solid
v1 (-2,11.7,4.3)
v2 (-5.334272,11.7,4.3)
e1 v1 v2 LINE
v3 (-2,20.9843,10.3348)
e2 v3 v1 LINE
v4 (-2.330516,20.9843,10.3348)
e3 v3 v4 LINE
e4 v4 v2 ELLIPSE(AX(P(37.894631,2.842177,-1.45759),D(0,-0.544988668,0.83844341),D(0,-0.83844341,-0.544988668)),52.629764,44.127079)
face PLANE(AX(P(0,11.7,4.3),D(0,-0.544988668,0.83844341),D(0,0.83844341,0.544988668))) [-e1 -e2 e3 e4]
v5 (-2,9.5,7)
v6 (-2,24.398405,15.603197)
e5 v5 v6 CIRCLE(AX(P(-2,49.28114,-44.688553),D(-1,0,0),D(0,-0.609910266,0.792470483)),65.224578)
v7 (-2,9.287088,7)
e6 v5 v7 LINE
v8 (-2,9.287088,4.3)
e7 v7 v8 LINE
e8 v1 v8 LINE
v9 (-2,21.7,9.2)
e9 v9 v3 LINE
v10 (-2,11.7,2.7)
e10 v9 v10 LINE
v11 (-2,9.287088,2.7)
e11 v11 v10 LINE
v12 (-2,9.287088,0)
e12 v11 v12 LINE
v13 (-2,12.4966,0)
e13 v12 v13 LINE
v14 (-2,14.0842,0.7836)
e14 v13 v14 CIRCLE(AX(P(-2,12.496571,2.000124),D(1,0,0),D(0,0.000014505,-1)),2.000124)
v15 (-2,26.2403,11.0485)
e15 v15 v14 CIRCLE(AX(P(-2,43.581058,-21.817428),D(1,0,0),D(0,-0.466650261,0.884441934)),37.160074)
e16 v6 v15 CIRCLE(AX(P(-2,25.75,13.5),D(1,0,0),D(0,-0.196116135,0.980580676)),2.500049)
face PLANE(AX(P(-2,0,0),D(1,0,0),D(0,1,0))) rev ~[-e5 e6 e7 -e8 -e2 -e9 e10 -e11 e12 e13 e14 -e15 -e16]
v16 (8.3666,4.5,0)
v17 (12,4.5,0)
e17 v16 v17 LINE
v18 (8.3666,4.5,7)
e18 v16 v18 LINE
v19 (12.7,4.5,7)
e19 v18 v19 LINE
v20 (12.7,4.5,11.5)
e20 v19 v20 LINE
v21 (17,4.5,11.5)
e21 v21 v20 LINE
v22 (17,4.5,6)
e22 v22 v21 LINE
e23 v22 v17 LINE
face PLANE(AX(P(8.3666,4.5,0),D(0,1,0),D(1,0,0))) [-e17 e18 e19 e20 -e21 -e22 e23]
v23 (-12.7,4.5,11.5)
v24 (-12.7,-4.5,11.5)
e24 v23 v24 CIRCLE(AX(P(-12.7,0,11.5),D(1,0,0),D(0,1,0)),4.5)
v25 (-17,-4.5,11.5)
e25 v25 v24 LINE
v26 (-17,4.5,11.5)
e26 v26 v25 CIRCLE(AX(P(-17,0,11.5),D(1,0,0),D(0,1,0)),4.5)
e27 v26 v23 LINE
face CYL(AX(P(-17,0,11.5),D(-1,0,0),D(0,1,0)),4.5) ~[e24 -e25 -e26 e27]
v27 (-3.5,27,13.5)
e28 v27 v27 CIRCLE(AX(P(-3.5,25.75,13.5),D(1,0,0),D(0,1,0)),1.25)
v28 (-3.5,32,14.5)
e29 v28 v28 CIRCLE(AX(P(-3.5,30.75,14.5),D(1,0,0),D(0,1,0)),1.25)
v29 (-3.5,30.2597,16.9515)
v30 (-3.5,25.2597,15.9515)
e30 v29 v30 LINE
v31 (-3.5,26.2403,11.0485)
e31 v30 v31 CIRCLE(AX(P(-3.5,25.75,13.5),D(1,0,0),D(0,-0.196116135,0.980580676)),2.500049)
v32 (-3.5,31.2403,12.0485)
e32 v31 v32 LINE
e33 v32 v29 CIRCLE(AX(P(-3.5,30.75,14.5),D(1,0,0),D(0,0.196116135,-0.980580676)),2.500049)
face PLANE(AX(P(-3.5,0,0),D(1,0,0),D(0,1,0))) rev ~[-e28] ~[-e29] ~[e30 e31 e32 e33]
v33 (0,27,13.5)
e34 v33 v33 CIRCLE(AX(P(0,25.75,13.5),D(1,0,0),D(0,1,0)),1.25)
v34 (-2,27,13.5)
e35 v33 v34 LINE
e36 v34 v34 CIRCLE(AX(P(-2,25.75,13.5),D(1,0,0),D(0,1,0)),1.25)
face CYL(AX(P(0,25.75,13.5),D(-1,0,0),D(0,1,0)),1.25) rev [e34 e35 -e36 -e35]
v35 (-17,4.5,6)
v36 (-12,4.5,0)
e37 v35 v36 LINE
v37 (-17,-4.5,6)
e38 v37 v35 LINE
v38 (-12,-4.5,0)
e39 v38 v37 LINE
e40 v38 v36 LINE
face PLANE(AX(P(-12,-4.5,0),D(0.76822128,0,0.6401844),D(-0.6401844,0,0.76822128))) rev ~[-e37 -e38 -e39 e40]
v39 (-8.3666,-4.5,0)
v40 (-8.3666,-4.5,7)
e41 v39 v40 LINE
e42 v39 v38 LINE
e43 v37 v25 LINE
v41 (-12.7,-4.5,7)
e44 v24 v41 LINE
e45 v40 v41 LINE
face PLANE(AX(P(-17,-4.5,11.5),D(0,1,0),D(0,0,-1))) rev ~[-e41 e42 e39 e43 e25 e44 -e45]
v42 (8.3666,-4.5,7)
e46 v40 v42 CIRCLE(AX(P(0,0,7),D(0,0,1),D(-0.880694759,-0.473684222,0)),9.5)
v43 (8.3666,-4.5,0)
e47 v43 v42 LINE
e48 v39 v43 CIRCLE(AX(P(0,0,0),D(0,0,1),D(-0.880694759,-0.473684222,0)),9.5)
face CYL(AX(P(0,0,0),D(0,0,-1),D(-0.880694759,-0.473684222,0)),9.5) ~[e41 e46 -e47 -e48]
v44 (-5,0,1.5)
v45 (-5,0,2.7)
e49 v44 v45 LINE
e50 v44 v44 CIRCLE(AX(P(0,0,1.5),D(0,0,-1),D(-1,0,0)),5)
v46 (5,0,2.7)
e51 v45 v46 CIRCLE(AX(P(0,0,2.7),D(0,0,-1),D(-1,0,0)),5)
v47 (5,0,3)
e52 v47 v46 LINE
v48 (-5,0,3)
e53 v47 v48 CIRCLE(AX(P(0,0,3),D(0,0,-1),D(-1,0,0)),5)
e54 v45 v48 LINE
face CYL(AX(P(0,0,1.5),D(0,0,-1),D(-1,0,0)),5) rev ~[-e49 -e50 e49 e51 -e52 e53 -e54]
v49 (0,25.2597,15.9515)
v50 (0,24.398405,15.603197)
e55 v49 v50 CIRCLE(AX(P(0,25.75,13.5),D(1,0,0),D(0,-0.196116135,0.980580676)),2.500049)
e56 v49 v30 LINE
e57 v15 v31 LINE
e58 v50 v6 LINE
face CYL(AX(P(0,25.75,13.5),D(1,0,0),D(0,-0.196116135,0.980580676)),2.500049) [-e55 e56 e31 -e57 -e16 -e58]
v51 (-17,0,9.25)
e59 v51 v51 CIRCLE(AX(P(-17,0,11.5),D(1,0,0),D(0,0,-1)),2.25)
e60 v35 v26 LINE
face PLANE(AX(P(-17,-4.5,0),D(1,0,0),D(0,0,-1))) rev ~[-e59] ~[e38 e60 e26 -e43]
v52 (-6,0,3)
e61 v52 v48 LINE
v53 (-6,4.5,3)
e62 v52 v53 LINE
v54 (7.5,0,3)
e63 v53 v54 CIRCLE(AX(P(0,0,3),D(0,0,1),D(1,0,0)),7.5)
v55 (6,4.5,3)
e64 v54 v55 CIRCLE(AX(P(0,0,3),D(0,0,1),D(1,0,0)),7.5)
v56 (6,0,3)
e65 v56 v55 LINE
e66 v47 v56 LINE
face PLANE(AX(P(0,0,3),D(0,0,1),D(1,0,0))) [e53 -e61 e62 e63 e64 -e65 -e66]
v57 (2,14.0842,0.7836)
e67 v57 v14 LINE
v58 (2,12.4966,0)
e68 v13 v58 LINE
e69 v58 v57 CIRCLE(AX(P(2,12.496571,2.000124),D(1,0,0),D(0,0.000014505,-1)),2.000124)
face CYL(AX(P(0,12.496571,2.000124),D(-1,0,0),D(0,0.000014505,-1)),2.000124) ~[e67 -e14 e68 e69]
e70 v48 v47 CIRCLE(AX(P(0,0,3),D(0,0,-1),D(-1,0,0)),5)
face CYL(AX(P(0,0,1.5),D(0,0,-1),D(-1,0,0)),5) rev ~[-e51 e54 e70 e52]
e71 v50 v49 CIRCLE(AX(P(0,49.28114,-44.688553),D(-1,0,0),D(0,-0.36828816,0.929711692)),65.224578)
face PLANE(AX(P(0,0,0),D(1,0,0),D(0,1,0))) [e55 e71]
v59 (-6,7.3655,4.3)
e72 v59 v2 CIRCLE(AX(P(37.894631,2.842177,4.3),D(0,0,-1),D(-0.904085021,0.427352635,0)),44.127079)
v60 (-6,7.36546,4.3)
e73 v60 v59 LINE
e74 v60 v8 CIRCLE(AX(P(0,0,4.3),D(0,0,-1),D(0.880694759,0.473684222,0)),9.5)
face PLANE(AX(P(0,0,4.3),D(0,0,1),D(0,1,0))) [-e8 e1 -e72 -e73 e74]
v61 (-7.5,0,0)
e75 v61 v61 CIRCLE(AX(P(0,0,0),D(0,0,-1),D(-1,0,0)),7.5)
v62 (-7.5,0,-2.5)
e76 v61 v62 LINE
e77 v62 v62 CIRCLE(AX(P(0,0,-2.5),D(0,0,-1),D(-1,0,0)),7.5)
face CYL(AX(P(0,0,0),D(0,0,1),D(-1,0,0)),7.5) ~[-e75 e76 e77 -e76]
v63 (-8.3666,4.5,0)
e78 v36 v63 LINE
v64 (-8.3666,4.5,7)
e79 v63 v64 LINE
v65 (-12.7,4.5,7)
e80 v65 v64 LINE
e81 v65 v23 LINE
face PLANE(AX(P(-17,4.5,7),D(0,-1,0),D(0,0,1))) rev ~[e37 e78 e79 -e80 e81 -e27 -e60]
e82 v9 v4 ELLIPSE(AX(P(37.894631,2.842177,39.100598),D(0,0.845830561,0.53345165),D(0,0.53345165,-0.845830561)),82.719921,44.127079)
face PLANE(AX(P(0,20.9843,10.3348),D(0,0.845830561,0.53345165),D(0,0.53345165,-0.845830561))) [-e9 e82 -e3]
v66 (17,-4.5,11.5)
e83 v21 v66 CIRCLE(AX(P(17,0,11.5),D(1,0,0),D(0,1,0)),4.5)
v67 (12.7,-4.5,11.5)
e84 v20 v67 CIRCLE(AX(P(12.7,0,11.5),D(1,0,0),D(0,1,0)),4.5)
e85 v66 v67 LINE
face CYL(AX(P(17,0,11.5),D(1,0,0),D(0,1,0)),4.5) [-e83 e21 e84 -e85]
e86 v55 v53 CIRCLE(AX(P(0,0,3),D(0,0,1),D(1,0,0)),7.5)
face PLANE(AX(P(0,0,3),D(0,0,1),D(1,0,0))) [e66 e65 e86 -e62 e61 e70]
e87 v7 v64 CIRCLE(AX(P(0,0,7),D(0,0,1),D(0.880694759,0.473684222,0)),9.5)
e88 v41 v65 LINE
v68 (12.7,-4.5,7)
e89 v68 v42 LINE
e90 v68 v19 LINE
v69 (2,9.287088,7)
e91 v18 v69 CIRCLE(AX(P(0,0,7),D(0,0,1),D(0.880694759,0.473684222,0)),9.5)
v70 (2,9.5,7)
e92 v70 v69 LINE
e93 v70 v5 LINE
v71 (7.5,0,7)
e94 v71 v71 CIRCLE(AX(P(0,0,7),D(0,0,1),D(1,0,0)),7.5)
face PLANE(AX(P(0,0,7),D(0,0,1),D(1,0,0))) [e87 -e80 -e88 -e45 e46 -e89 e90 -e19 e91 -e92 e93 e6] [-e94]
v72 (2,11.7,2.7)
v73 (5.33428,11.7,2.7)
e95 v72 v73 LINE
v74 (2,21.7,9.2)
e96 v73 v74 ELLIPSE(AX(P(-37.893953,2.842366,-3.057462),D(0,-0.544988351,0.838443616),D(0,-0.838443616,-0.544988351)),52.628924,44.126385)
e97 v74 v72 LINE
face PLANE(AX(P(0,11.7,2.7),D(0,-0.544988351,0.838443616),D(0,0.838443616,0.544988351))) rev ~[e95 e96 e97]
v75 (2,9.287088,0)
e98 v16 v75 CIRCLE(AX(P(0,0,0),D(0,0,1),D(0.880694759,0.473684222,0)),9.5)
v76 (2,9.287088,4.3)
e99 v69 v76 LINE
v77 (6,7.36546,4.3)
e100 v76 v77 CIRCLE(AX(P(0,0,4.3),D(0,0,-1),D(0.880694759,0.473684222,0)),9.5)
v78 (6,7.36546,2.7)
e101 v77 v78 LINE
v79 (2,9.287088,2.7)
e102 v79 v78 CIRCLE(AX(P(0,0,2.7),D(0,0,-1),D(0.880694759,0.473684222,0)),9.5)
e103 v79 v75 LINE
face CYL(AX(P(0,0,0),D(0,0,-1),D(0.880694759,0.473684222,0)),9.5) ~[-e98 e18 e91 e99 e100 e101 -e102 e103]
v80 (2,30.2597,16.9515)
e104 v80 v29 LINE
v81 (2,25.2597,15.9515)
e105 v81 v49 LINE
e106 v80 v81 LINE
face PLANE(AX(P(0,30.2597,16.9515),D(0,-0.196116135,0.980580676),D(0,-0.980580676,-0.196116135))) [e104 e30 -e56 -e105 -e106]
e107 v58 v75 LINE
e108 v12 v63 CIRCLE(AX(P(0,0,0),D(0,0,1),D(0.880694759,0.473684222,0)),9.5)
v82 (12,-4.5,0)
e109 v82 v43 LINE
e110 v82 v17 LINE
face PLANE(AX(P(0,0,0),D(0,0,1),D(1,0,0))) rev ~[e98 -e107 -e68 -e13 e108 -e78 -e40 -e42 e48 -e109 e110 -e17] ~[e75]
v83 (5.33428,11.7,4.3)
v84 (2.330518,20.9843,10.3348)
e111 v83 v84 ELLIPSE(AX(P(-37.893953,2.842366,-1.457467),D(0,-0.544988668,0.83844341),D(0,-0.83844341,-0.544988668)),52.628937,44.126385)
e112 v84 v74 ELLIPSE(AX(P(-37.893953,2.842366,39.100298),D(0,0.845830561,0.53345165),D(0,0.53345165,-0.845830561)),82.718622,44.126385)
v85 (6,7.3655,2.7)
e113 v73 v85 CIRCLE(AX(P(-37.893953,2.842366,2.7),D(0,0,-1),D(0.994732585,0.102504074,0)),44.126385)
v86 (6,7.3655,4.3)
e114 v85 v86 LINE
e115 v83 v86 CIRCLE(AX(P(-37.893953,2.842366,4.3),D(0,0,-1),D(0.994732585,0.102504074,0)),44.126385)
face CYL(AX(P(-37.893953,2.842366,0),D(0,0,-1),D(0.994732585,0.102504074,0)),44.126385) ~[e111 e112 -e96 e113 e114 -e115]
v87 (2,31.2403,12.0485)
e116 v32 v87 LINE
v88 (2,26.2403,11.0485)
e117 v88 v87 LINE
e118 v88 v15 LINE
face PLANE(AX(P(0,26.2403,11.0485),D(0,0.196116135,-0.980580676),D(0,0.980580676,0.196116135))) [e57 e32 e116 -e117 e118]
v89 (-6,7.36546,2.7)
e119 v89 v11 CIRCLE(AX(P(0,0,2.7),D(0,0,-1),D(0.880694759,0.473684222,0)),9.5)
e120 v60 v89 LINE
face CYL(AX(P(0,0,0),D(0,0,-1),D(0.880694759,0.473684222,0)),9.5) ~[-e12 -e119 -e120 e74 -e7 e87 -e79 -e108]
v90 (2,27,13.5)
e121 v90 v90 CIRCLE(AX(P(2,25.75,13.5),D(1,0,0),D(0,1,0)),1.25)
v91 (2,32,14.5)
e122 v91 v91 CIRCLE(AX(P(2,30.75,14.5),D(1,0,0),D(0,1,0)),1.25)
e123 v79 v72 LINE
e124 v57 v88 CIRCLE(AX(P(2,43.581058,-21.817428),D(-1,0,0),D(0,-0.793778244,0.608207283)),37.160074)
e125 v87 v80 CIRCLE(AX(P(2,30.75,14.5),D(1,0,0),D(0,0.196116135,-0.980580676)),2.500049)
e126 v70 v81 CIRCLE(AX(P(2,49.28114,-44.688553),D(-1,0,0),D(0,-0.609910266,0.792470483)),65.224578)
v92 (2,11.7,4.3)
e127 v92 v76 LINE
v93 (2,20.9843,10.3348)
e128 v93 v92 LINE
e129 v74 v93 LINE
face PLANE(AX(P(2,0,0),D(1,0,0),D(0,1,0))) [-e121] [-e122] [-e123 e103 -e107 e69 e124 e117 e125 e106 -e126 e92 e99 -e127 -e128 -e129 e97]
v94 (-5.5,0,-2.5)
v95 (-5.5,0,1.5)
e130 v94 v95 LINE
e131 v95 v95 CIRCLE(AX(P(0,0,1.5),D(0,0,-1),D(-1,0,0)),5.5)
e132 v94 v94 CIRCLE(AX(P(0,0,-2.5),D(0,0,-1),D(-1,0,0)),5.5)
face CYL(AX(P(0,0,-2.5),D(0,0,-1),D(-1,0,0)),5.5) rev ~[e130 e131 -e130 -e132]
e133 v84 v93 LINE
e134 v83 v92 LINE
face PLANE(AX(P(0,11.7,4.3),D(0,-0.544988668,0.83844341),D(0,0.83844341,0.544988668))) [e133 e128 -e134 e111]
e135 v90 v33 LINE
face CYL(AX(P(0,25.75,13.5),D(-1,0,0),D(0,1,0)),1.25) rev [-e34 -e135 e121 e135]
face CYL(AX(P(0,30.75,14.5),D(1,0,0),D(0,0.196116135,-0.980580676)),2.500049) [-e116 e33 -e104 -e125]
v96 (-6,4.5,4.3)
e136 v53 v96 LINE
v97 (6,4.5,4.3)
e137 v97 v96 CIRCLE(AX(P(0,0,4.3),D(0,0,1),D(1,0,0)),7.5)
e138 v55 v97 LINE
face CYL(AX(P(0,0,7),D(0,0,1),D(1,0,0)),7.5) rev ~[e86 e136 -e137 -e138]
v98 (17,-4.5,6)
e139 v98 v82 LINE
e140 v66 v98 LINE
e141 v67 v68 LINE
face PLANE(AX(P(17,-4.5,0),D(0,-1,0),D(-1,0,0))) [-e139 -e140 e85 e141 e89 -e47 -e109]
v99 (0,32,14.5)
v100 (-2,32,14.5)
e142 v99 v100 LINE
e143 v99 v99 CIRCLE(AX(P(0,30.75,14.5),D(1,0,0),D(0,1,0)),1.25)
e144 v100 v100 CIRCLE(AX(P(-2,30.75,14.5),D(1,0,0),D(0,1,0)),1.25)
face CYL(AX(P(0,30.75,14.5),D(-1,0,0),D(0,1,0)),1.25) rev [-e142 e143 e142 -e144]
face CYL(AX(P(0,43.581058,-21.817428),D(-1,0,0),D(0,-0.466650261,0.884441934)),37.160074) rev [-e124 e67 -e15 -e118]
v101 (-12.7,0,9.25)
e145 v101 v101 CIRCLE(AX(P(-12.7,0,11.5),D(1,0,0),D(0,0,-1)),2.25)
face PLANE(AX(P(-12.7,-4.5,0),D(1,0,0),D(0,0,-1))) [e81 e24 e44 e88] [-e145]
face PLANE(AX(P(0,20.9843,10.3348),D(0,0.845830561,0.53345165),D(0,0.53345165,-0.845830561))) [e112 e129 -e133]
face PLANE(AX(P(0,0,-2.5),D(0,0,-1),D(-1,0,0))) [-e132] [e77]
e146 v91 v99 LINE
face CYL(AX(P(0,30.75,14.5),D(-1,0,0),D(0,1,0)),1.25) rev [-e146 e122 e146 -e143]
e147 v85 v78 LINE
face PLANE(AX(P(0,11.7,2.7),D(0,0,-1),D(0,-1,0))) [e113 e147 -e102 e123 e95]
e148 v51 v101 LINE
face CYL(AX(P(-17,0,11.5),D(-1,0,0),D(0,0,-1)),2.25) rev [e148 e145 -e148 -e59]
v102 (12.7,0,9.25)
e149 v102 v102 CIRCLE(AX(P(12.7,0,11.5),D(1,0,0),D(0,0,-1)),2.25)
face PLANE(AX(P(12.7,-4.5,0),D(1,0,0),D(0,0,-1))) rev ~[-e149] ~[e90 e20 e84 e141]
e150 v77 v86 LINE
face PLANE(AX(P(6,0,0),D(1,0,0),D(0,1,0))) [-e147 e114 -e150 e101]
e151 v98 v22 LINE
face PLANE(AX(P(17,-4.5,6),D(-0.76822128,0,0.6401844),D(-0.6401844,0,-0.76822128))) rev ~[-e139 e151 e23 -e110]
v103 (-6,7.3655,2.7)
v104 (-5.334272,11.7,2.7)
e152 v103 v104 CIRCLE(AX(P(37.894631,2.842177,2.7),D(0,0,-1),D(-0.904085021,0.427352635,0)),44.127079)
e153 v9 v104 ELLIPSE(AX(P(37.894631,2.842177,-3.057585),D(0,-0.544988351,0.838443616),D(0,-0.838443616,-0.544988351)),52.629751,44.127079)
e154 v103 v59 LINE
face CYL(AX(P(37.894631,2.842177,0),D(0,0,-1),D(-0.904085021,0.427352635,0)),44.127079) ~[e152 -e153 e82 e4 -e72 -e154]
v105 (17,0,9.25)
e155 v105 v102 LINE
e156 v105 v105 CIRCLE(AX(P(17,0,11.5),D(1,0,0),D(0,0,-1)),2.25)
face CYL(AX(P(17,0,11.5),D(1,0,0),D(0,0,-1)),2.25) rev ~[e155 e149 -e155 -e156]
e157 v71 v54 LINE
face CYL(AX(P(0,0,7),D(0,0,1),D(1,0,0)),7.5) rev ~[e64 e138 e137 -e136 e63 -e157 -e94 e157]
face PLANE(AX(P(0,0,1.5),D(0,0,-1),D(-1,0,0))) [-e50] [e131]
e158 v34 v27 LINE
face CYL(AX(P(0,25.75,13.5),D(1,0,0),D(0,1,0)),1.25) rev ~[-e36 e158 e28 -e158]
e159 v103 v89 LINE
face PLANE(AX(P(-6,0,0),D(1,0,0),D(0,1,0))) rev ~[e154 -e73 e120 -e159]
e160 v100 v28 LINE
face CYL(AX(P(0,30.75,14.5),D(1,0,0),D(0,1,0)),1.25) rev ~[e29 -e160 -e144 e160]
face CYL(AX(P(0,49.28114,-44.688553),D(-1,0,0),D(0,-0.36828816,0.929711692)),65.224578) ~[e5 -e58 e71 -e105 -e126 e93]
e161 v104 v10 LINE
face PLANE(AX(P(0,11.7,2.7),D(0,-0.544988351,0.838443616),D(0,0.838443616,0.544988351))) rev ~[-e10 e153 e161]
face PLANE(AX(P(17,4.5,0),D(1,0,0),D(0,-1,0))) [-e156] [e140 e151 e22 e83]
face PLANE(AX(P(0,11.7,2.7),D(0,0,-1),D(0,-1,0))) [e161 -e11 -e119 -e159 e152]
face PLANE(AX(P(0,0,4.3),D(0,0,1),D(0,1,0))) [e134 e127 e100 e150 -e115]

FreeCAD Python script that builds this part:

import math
import FreeCAD as App
import Part
import Sketcher
Q = App.Units.Quantity


def add_polygon(sketch, points):
    """Adds a closed chain of lines whose ends are joined by coincident constraints."""
    first, n = sketch.GeometryCount, len(points)
    for a, b in zip(points, points[1:] + points[:1]):
        sketch.addGeometry(Part.LineSegment(App.Vector(*a, 0), App.Vector(*b, 0)), False)
    for i in range(n):
        sketch.addConstraint(Sketcher.Constraint("Coincident", first + i, 2, first + (i + 1) % n, 1))

doc = App.newDocument("Part")
params = doc.addObject("Spreadsheet::Sheet", "Params")
for row, (alias, value) in enumerate([
    ("sketch1_radius", "9.5 mm"),
    ("sketch1_height", "9 mm"),
    ("pad1_length", "7 mm"),
    ("sketch2_diameter", "4.5 mm"),
    ("sketch2_radius", "4.5 mm"),
    ("sketch2_height", "4.5 mm"),
    ("pad2_length", "4.3 mm"),
    ("sketch3_diameter", "4.5 mm"),
    ("sketch3_radius", "4.5 mm"),
    ("sketch3_height", "4.5 mm"),
    ("pad3_length", "4.3 mm"),
    ("sketch4_width", "5 mm"),
    ("sketch4_height", "6 mm"),
    ("pocket1_length", "9 mm"),
    ("sketch5_diameter", "15 mm"),
    ("pad4_length", "2.5 mm"),
    ("sketch6_diameter", "15 mm"),
    ("pocket2_length", "4 mm"),
    ("sketch7_diameter", "11 mm"),
    ("pocket3_length", "4 mm"),
    ("sketch8_diameter", "10 mm"),
    ("sketch9_radius", "2 mm"),
    ("sketch9_diameter", "2.5 mm"),
    ("sketch9_radius2", "2.5 mm"),
    ("sketch9_height", "7 mm"),
    ("sketch9_width", "1 mm"),
    ("pad5_length", "4 mm"),
    ("sketch10_diameter", "2.5 mm"),
    ("sketch10_radius", "2.5 mm"),
    ("pad6_length", "3.5 mm"),
    ("sketch11_width", "11.7 mm"),
    ("sketch11_height", "1.6 mm"),
    ("pad7_length", "12 mm"),
    ("sketch12_diameter", "15 mm"),
    ("pocket5_length", "4 mm"),
    ("sketch13_diameter", "10 mm"),
    ("sketch14_width", "4 mm"),
], start=1):
    params.set(f"A{row}", alias)
    params.set(f"B{row}", "=" + value)
    params.setAlias(f"B{row}", alias)

body = doc.addObject("PartDesign::Body", "Body")

sketch1 = body.newObject("Sketcher::SketchObject", "Sketch")
sketch1.AttachmentSupport = (doc.getObject("XY_Plane"), [""])
sketch1.MapMode = "FlatFace"
sketch1.addGeometry(Part.LineSegment(App.Vector(17, -4, 0), App.Vector(17, 4, 0)), False)
sketch1.addGeometry(Part.LineSegment(App.Vector(17, 4, 0), App.Vector(8, 4, 0)), False)
sketch1.addGeometry(Part.ArcOfCircle(Part.Circle(App.Vector(0, 0, 0), App.Vector(0, 0, 1), 9), math.radians(28), math.radians(152)), False)
sketch1.addGeometry(Part.LineSegment(App.Vector(-8, 4, 0), App.Vector(-17, 4, 0)), False)
sketch1.addGeometry(Part.LineSegment(App.Vector(-17, 4, 0), App.Vector(-17, -4, 0)), False)
sketch1.addGeometry(Part.LineSegment(App.Vector(-17, -4, 0), App.Vector(-8, -4, 0)), False)
sketch1.addGeometry(Part.ArcOfCircle(Part.Circle(App.Vector(0, 0, 0), App.Vector(0, 0, 1), 9), math.radians(-152), math.radians(-28)), False)
sketch1.addGeometry(Part.LineSegment(App.Vector(8, -4, 0), App.Vector(17, -4, 0)), False)
sketch1.addConstraint(Sketcher.Constraint("Coincident", 0, 2, 1, 1))
sketch1.addConstraint(Sketcher.Constraint("Coincident", 1, 2, 2, 1))
sketch1.addConstraint(Sketcher.Constraint("Coincident", 2, 2, 3, 1))
sketch1.addConstraint(Sketcher.Constraint("Coincident", 3, 2, 4, 1))
sketch1.addConstraint(Sketcher.Constraint("Coincident", 4, 2, 5, 1))
sketch1.addConstraint(Sketcher.Constraint("Coincident", 5, 2, 6, 1))
sketch1.addConstraint(Sketcher.Constraint("Coincident", 6, 2, 7, 1))
sketch1.addConstraint(Sketcher.Constraint("Coincident", 7, 2, 0, 1))
sketch1.addConstraint(Sketcher.Constraint("Vertical", 0))
sketch1.addConstraint(Sketcher.Constraint("Horizontal", 1))
sketch1.addConstraint(Sketcher.Constraint("Horizontal", 3))
sketch1.addConstraint(Sketcher.Constraint("Vertical", 4))
sketch1.addConstraint(Sketcher.Constraint("Horizontal", 5))
sketch1.addConstraint(Sketcher.Constraint("Horizontal", 7))
sketch1.addConstraint(Sketcher.Constraint("Coincident", 2, 3, -1, 1))
sketch1.addConstraint(Sketcher.Constraint("Coincident", 6, 3, -1, 1))
sketch1.addConstraint(Sketcher.Constraint("Equal", 2, 6))
sketch1.addConstraint(Sketcher.Constraint("Symmetric", 0, 2, 4, 2, -1, 1))
sketch1.addConstraint(Sketcher.Constraint("Horizontal", 1, 2, 2, 2))
sketch1.addConstraint(Sketcher.Constraint("Horizontal", 5, 2, 6, 2))
sketch1.addConstraint(Sketcher.Constraint("Radius", 2, Q("9.5 mm")))
sketch1.addConstraint(Sketcher.Constraint("DistanceY", 0, 1, 0, 2, Q("9 mm")))
sketch1.addConstraint(Sketcher.Constraint("DistanceX", 3, 2, 0, 2, Q("34 mm")))
sketch1.setExpression("Constraints[20]", "Params.sketch1_radius")
sketch1.setExpression("Constraints[21]", "Params.sketch1_height")
pad1 = body.newObject("PartDesign::Pad", "Pad")
pad1.Profile = sketch1
pad1.setExpression("Length", "Params.pad1_length")

sketch2 = body.newObject("Sketcher::SketchObject", "Sketch001")
sketch2.AttachmentSupport = (doc.getObject("YZ_Plane"), [""])
sketch2.MapMode = "FlatFace"
sketch2.AttachmentOffset = App.Placement(App.Vector(0, 0, 17), App.Rotation())
sketch2.addGeometry(Part.LineSegment(App.Vector(4.5, 7, 0), App.Vector(4.5, 11.5, 0)), False)
sketch2.addGeometry(Part.ArcOfCircle(Part.Circle(App.Vector(0, 11.5, 0), App.Vector(0, 0, 1), 4.5), math.radians(0), math.radians(180)), False)
sketch2.addGeometry(Part.LineSegment(App.Vector(-4.5, 11.5, 0), App.Vector(-4.5, 7, 0)), False)
sketch2.addGeometry(Part.LineSegment(App.Vector(-4.5, 7, 0), App.Vector(4.5, 7, 0)), False)
sketch2.addGeometry(Part.Circle(App.Vector(0, 11.5, 0), App.Vector(0, 0, 1), 2.2), False)
sketch2.addConstraint(Sketcher.Constraint("Tangent", 0, 2, 1, 1))
sketch2.addConstraint(Sketcher.Constraint("Tangent", 1, 2, 2, 1))
sketch2.addConstraint(Sketcher.Constraint("Coincident", 2, 2, 3, 1))
sketch2.addConstraint(Sketcher.Constraint("Coincident", 3, 2, 0, 1))
sketch2.addConstraint(Sketcher.Constraint("Vertical", 0))
sketch2.addConstraint(Sketcher.Constraint("Vertical", 2))
sketch2.addConstraint(Sketcher.Constraint("Horizontal", 3))
sketch2.addConstraint(Sketcher.Constraint("Coincident", 4, 3, 1, 3))
sketch2.addConstraint(Sketcher.Constraint("PointOnObject", 1, 3, -2))
sketch2.addConstraint(Sketcher.Constraint("Diameter", 4, Q("4.5 mm")))
sketch2.addConstraint(Sketcher.Constraint("Radius", 1, Q("4.5 mm")))
sketch2.addConstraint(Sketcher.Constraint("DistanceY", 0, 1, 0, 2, Q("4.5 mm")))
sketch2.addConstraint(Sketcher.Constraint("DistanceY", -1, 1, 2, 2, Q("7 mm")))
sketch2.setExpression("Constraints[9]", "Params.sketch2_diameter")
sketch2.setExpression("Constraints[10]", "Params.sketch2_radius")
sketch2.setExpression("Constraints[11]", "Params.sketch2_height")
pad2 = body.newObject("PartDesign::Pad", "Pad001")
pad2.Profile = sketch2
pad2.setExpression("Length", "Params.pad2_length")
pad2.Reversed = True

sketch3 = body.newObject("Sketcher::SketchObject", "Sketch002")
sketch3.AttachmentSupport = (doc.getObject("YZ_Plane"), [""])
sketch3.MapMode = "FlatFace"
sketch3.AttachmentOffset = App.Placement(App.Vector(0, 0, -17), App.Rotation())
sketch3.addGeometry(Part.LineSegment(App.Vector(4.5, 7, 0), App.Vector(4.5, 11.5, 0)), False)
sketch3.addGeometry(Part.ArcOfCircle(Part.Circle(App.Vector(0, 11.5, 0), App.Vector(0, 0, 1), 4.5), math.radians(0), math.radians(180)), False)
sketch3.addGeometry(Part.LineSegment(App.Vector(-4.5, 11.5, 0), App.Vector(-4.5, 7, 0)), False)
sketch3.addGeometry(Part.LineSegment(App.Vector(-4.5, 7, 0), App.Vector(4.5, 7, 0)), False)
sketch3.addGeometry(Part.Circle(App.Vector(0, 11.5, 0), App.Vector(0, 0, 1), 2.2), False)
sketch3.addConstraint(Sketcher.Constraint("Tangent", 0, 2, 1, 1))
sketch3.addConstraint(Sketcher.Constraint("Tangent", 1, 2, 2, 1))
sketch3.addConstraint(Sketcher.Constraint("Coincident", 2, 2, 3, 1))
sketch3.addConstraint(Sketcher.Constraint("Coincident", 3, 2, 0, 1))
sketch3.addConstraint(Sketcher.Constraint("Vertical", 0))
sketch3.addConstraint(Sketcher.Constraint("Vertical", 2))
sketch3.addConstraint(Sketcher.Constraint("Horizontal", 3))
sketch3.addConstraint(Sketcher.Constraint("Coincident", 4, 3, 1, 3))
sketch3.addConstraint(Sketcher.Constraint("PointOnObject", 1, 3, -2))
sketch3.addConstraint(Sketcher.Constraint("Diameter", 4, Q("4.5 mm")))
sketch3.addConstraint(Sketcher.Constraint("Radius", 1, Q("4.5 mm")))
sketch3.addConstraint(Sketcher.Constraint("DistanceY", 0, 1, 0, 2, Q("4.5 mm")))
sketch3.addConstraint(Sketcher.Constraint("DistanceY", -1, 1, 2, 2, Q("7 mm")))
sketch3.setExpression("Constraints[9]", "Params.sketch3_diameter")
sketch3.setExpression("Constraints[10]", "Params.sketch3_radius")
sketch3.setExpression("Constraints[11]", "Params.sketch3_height")
pad3 = body.newObject("PartDesign::Pad", "Pad002")
pad3.Profile = sketch3
pad3.setExpression("Length", "Params.pad3_length")

sketch4 = body.newObject("Sketcher::SketchObject", "Sketch003")
sketch4.AttachmentSupport = (doc.getObject("XZ_Plane"), [""])
sketch4.MapMode = "FlatFace"
sketch4.AttachmentOffset = App.Placement(App.Vector(0, 0, 4.5), App.Rotation())
add_polygon(sketch4, [(-12, 0), (-17, 6), (-17, 0)])
add_polygon(sketch4, [(17, 6), (12, 0), (17, 0)])
sketch4.addConstraint(Sketcher.Constraint("Vertical", 1))
sketch4.addConstraint(Sketcher.Constraint("Horizontal", 2))
sketch4.addConstraint(Sketcher.Constraint("Horizontal", 4))
sketch4.addConstraint(Sketcher.Constraint("Vertical", 5))
sketch4.addConstraint(Sketcher.Constraint("Symmetric", 2, 2, 3, 2, -1, 1))
sketch4.addConstraint(Sketcher.Constraint("Symmetric", 1, 2, 4, 2, -2))
sketch4.addConstraint(Sketcher.Constraint("Horizontal", 0, 2, 5, 2))
sketch4.addConstraint(Sketcher.Constraint("DistanceX", 2, 1, 2, 2, Q("5 mm")))
sketch4.addConstraint(Sketcher.Constraint("DistanceY", 1, 2, 1, 1, Q("6 mm")))
sketch4.addConstraint(Sketcher.Constraint("DistanceX", 0, 2, -1, 1, Q("17 mm")))
sketch4.setExpression("Constraints[13]", "Params.sketch4_width")
sketch4.setExpression("Constraints[14]", "Params.sketch4_height")
pocket1 = body.newObject("PartDesign::Pocket", "Pocket")
pocket1.Profile = sketch4
pocket1.setExpression("Length", "Params.pocket1_length")

sketch5 = body.newObject("Sketcher::SketchObject", "Sketch004")
sketch5.AttachmentSupport = (doc.getObject("XY_Plane"), [""])
sketch5.MapMode = "FlatFace"
sketch5.addGeometry(Part.Circle(App.Vector(0, 0, 0), App.Vector(0, 0, 1), 8), False)
sketch5.addConstraint(Sketcher.Constraint("Coincident", 0, 3, -1, 1))
sketch5.addConstraint(Sketcher.Constraint("Diameter", 0, Q("15 mm")))
sketch5.setExpression("Constraints[1]", "Params.sketch5_diameter")
pad4 = body.newObject("PartDesign::Pad", "Pad003")
pad4.Profile = sketch5
pad4.setExpression("Length", "Params.pad4_length")
pad4.Reversed = True

sketch6 = body.newObject("Sketcher::SketchObject", "Sketch005")
sketch6.AttachmentSupport = (doc.getObject("XY_Plane"), [""])
sketch6.MapMode = "FlatFace"
sketch6.AttachmentOffset = App.Placement(App.Vector(0, 0, 7), App.Rotation())
sketch6.addGeometry(Part.Circle(App.Vector(0, 0, 0), App.Vector(0, 0, 1), 8), False)
sketch6.addConstraint(Sketcher.Constraint("Coincident", 0, 3, -1, 1))
sketch6.addConstraint(Sketcher.Constraint("Diameter", 0, Q("15 mm")))
sketch6.setExpression("Constraints[1]", "Params.sketch6_diameter")
pocket2 = body.newObject("PartDesign::Pocket", "Pocket001")
pocket2.Profile = sketch6
pocket2.setExpression("Length", "Params.pocket2_length")

sketch7 = body.newObject("Sketcher::SketchObject", "Sketch006")
sketch7.AttachmentSupport = (doc.getObject("XY_Plane"), [""])
sketch7.MapMode = "FlatFace"
sketch7.AttachmentOffset = App.Placement(App.Vector(0, 0, -2.5), App.Rotation())
sketch7.addGeometry(Part.Circle(App.Vector(0, 0, 0), App.Vector(0, 0, 1), 6), False)
sketch7.addConstraint(Sketcher.Constraint("Coincident", 0, 3, -1, 1))
sketch7.addConstraint(Sketcher.Constraint("Diameter", 0, Q("11 mm")))
sketch7.setExpression("Constraints[1]", "Params.sketch7_diameter")
pocket3 = body.newObject("PartDesign::Pocket", "Pocket002")
pocket3.Profile = sketch7
pocket3.setExpression("Length", "Params.pocket3_length")
pocket3.Reversed = True

sketch8 = body.newObject("Sketcher::SketchObject", "Sketch007")
sketch8.AttachmentSupport = (doc.getObject("XY_Plane"), [""])
sketch8.MapMode = "FlatFace"
sketch8.AttachmentOffset = App.Placement(App.Vector(0, 0, 1.5), App.Rotation())
sketch8.addGeometry(Part.Circle(App.Vector(0, 0, 0), App.Vector(0, 0, 1), 5), False)
sketch8.addConstraint(Sketcher.Constraint("Coincident", 0, 3, -1, 1))
sketch8.addConstraint(Sketcher.Constraint("Diameter", 0, Q("10 mm")))
sketch8.setExpression("Constraints[1]", "Params.sketch8_diameter")
pocket4 = body.newObject("PartDesign::Pocket", "Pocket003")
pocket4.Profile = sketch8
pocket4.Type = "UpToFirst"
pocket4.Reversed = True

sketch9 = body.newObject("Sketcher::SketchObject", "Sketch008")
sketch9.AttachmentSupport = (doc.getObject("YZ_Plane"), [""])
sketch9.MapMode = "FlatFace"
sketch9.addGeometry(Part.LineSegment(App.Vector(8.5, 7, 0), App.Vector(8.5, 0, 0)), False)
sketch9.addGeometry(Part.LineSegment(App.Vector(8.5, 0, 0), App.Vector(12.5, 0, 0)), False)
sketch9.addGeometry(Part.ArcOfCircle(Part.Circle(App.Vector(12.5, 2, 0), App.Vector(0, 0, 1), 2), math.radians(-90), math.radians(-37)), False)
sketch9.addGeometry(Part.ArcOfCircle(Part.Circle(App.Vector(43.6, -21.8, 0), App.Vector(0, 0, 1), 37.2), math.radians(118), math.radians(143)), False)
sketch9.addGeometry(Part.LineSegment(App.Vector(26.2, 11, 0), App.Vector(31.2, 12, 0)), False)
sketch9.addGeometry(Part.ArcOfCircle(Part.Circle(App.Vector(30.8, 14.5, 0), App.Vector(0, 0, 1), 2.5), math.radians(-79), math.radians(101)), False)
sketch9.addGeometry(Part.LineSegment(App.Vector(30.3, 17, 0), App.Vector(25.3, 16, 0)), False)
sketch9.addGeometry(Part.ArcOfCircle(Part.Circle(App.Vector(49.3, -44.7, 0), App.Vector(0, 0, 1), 65.2), math.radians(111.61), math.radians(127.58)), False)
sketch9.addGeometry(Part.LineSegment(App.Vector(9.5, 7, 0), App.Vector(8.5, 7, 0)), False)
sketch9.addGeometry(Part.Circle(App.Vector(25.8, 13.5, 0), App.Vector(0, 0, 1), 1.2), False)
sketch9.addGeometry(Part.Circle(App.Vector(30.8, 14.5, 0), App.Vector(0, 0, 1), 1.2), False)
sketch9.addConstraint(Sketcher.Constraint("Coincident", 0, 2, 1, 1))
sketch9.addConstraint(Sketcher.Constraint("Tangent", 1, 2, 2, 1))
sketch9.addConstraint(Sketcher.Constraint("Tangent", 2, 2, 3, 2))
sketch9.addConstraint(Sketcher.Constraint("Coincident", 3, 1, 4, 1))
sketch9.addConstraint(Sketcher.Constraint("Tangent", 4, 2, 5, 1))
sketch9.addConstraint(Sketcher.Constraint("Tangent", 5, 2, 6, 1))
sketch9.addConstraint(Sketcher.Constraint("Coincident", 6, 2, 7, 1))
sketch9.addConstraint(Sketcher.Constraint("Coincident", 7, 2, 8, 1))
sketch9.addConstraint(Sketcher.Constraint("Coincident", 8, 2, 0, 1))
sketch9.addConstraint(Sketcher.Constraint("Vertical", 0))
sketch9.addConstraint(Sketcher.Constraint("Horizontal", 1))
sketch9.addConstraint(Sketcher.Constraint("Horizontal", 8))
sketch9.addConstraint(Sketcher.Constraint("Coincident", 10, 3, 5, 3))
sketch9.addConstraint(Sketcher.Constraint("Equal", 9, 10))
sketch9.addConstraint(Sketcher.Constraint("PointOnObject", 0, 2, -1))
sketch9.addConstraint(Sketcher.Constraint("Parallel", 4, 6))
sketch9.addConstraint(Sketcher.Constraint("Equal", 4, 6))
sketch9.addConstraint(Sketcher.Constraint("Radius", 2, Q("2 mm")))
sketch9.addConstraint(Sketcher.Constraint("Diameter", 9, Q("2.5 mm")))
sketch9.addConstraint(Sketcher.Constraint("Radius", 5, Q("2.5 mm")))
sketch9.addConstraint(Sketcher.Constraint("DistanceY", 0, 2, 0, 1, Q("7 mm")))
sketch9.addConstraint(Sketcher.Constraint("Radius", 3, Q("37.159 mm")))
sketch9.addConstraint(Sketcher.Constraint("DistanceX", 9, 3, 5, 3, Q("5 mm")))
sketch9.addConstraint(Sketcher.Constraint("DistanceX", 3, 1, 4, 2, Q("5 mm")))
sketch9.addConstraint(Sketcher.Constraint("DistanceY", -1, 1, 5, 3, Q("14.5 mm")))
sketch9.addConstraint(Sketcher.Constraint("DistanceY", -1, 1, 9, 3, Q("13.5 mm")))
sketch9.addConstraint(Sketcher.Constraint("DistanceX", -1, 1, 0, 2, Q("8.5 mm")))
sketch9.addConstraint(Sketcher.Constraint("DistanceX", 8, 2, 8, 1, Q("1 mm")))
sketch9.addConstraint(Sketcher.Constraint("DistanceX", -1, 1, 5, 3, Q("30.75 mm")))
sketch9.addConstraint(Sketcher.Constraint("DistanceY", 3, 1, 4, 2, Q("1 mm")))
sketch9.addConstraint(Sketcher.Constraint("Radius", 7, Q("65.2246 mm")))
sketch9.addConstraint(Sketcher.Constraint("DistanceX", 1, 1, 1, 2, Q("3.9966 mm")))
sketch9.setExpression("Constraints[17]", "Params.sketch9_radius")
sketch9.setExpression("Constraints[18]", "Params.sketch9_diameter")
sketch9.setExpression("Constraints[19]", "Params.sketch9_radius2")
sketch9.setExpression("Constraints[20]", "Params.sketch9_height")
sketch9.setExpression("Constraints[27]", "Params.sketch9_width")
pad5 = body.newObject("PartDesign::Pad", "Pad004")
pad5.Profile = sketch9
pad5.setExpression("Length", "Params.pad5_length")
pad5.Midplane = True

sketch10 = body.newObject("Sketcher::SketchObject", "Sketch009")
sketch10.AttachmentSupport = (doc.getObject("YZ_Plane"), [""])
sketch10.MapMode = "FlatFace"
sketch10.addGeometry(Part.ArcOfCircle(Part.Circle(App.Vector(25.8, 13.5, 0), App.Vector(0, 0, 1), 2.5), math.radians(101), math.radians(281)), False)
sketch10.addGeometry(Part.LineSegment(App.Vector(26.2, 11, 0), App.Vector(31.2, 12, 0)), False)
sketch10.addGeometry(Part.ArcOfCircle(Part.Circle(App.Vector(30.8, 14.5, 0), App.Vector(0, 0, 1), 2.5), math.radians(-79), math.radians(101)), False)
sketch10.addGeometry(Part.LineSegment(App.Vector(30.3, 17, 0), App.Vector(25.3, 16, 0)), False)
sketch10.addGeometry(Part.Circle(App.Vector(25.8, 13.5, 0), App.Vector(0, 0, 1), 1.2), False)
sketch10.addGeometry(Part.Circle(App.Vector(30.8, 14.5, 0), App.Vector(0, 0, 1), 1.2), False)
sketch10.addConstraint(Sketcher.Constraint("Tangent", 0, 2, 1, 1))
sketch10.addConstraint(Sketcher.Constraint("Tangent", 1, 2, 2, 1))
sketch10.addConstraint(Sketcher.Constraint("Tangent", 2, 2, 3, 1))
sketch10.addConstraint(Sketcher.Constraint("Tangent", 3, 2, 0, 1))
sketch10.addConstraint(Sketcher.Constraint("Coincident", 4, 3, 0, 3))
sketch10.addConstraint(Sketcher.Constraint("Coincident", 5, 3, 2, 3))
sketch10.addConstraint(Sketcher.Constraint("Equal", 0, 2))
sketch10.addConstraint(Sketcher.Constraint("Equal", 4, 5))
sketch10.addConstraint(Sketcher.Constraint("Diameter", 4, Q("2.5 mm")))
sketch10.addConstraint(Sketcher.Constraint("Radius", 0, Q("2.5 mm")))
sketch10.addConstraint(Sketcher.Constraint("DistanceX", 0, 3, 2, 3, Q("5 mm")))
sketch10.addConstraint(Sketcher.Constraint("DistanceY", 0, 3, 2, 3, Q("1 mm")))
sketch10.addConstraint(Sketcher.Constraint("DistanceY", -1, 1, 0, 3, Q("13.5 mm")))
sketch10.addConstraint(Sketcher.Constraint("DistanceX", -1, 1, 0, 3, Q("25.75 mm")))
sketch10.setExpression("Constraints[8]", "Params.sketch10_diameter")
sketch10.setExpression("Constraints[9]", "Params.sketch10_radius")
pad6 = body.newObject("PartDesign::Pad", "Pad005")
pad6.Profile = sketch10
pad6.setExpression("Length", "Params.pad6_length")
pad6.Reversed = True

sketch11 = body.newObject("Sketcher::SketchObject", "Sketch010")
sketch11.AttachmentSupport = (doc.getObject("YZ_Plane"), [""])
sketch11.MapMode = "FlatFace"
add_polygon(sketch11, [(11.7, 4.3), (0, 4.3), (0, 2.7), (11.7, 2.7), (21.7, 9.2), (21, 10.3)])
sketch11.addConstraint(Sketcher.Constraint("Horizontal", 0))
sketch11.addConstraint(Sketcher.Constraint("Vertical", 1))
sketch11.addConstraint(Sketcher.Constraint("Horizontal", 2))
sketch11.addConstraint(Sketcher.Constraint("PointOnObject", 0, 2, -2))
sketch11.addConstraint(Sketcher.Constraint("Parallel", 3, 5))
sketch11.addConstraint(Sketcher.Constraint("Vertical", 2, 2, 5, 2))
sketch11.addConstraint(Sketcher.Constraint("DistanceX", 0, 2, 0, 1, Q("11.7 mm")))
sketch11.addConstraint(Sketcher.Constraint("DistanceY", 1, 2, 1, 1, Q("1.6 mm")))
sketch11.addConstraint(Sketcher.Constraint("DistanceX", 2, 2, 3, 2, Q("10 mm")))
sketch11.addConstraint(Sketcher.Constraint("DistanceY", -1, 1, 1, 2, Q("2.7 mm")))
sketch11.addConstraint(Sketcher.Constraint("DistanceY", 2, 2, 3, 2, Q("6.5 mm")))
sketch11.addConstraint(Sketcher.Constraint("Angle", 4, Q("122.239 deg")))
sketch11.setExpression("Constraints[12]", "Params.sketch11_width")
sketch11.setExpression("Constraints[13]", "Params.sketch11_height")
pad7 = body.newObject("PartDesign::Pad", "Pad006")
pad7.Profile = sketch11
pad7.setExpression("Length", "Params.pad7_length")
pad7.Midplane = True

sketch12 = body.newObject("Sketcher::SketchObject", "Sketch011")
sketch12.AttachmentSupport = (doc.getObject("XY_Plane"), [""])
sketch12.MapMode = "FlatFace"
sketch12.AttachmentOffset = App.Placement(App.Vector(0, 0, 7), App.Rotation())
sketch12.addGeometry(Part.Circle(App.Vector(0, 0, 0), App.Vector(0, 0, 1), 8), False)
sketch12.addConstraint(Sketcher.Constraint("Coincident", 0, 3, -1, 1))
sketch12.addConstraint(Sketcher.Constraint("Diameter", 0, Q("15 mm")))
sketch12.setExpression("Constraints[1]", "Params.sketch12_diameter")
pocket5 = body.newObject("PartDesign::Pocket", "Pocket004")
pocket5.Profile = sketch12
pocket5.setExpression("Length", "Params.pocket5_length")

sketch13 = body.newObject("Sketcher::SketchObject", "Sketch012")
sketch13.AttachmentSupport = (doc.getObject("XY_Plane"), [""])
sketch13.MapMode = "FlatFace"
sketch13.AttachmentOffset = App.Placement(App.Vector(0, 0, 1.5), App.Rotation())
sketch13.addGeometry(Part.Circle(App.Vector(0, 0, 0), App.Vector(0, 0, 1), 5), False)
sketch13.addConstraint(Sketcher.Constraint("Coincident", 0, 3, -1, 1))
sketch13.addConstraint(Sketcher.Constraint("Diameter", 0, Q("10 mm")))
sketch13.setExpression("Constraints[1]", "Params.sketch13_diameter")
pocket6 = body.newObject("PartDesign::Pocket", "Pocket005")
pocket6.Profile = sketch13
pocket6.Type = "ThroughAll"
pocket6.Reversed = True

sketch14 = body.newObject("Sketcher::SketchObject", "Sketch013")
sketch14.AttachmentSupport = (doc.getObject("XY_Plane"), [""])
sketch14.MapMode = "FlatFace"
sketch14.addGeometry(Part.LineSegment(App.Vector(-2, 21.7, 0), App.Vector(-6, 21.7, 0)), False)
sketch14.addGeometry(Part.LineSegment(App.Vector(-6, 21.7, 0), App.Vector(-6, 7.4, 0)), False)
sketch14.addGeometry(Part.ArcOfCircle(Part.Circle(App.Vector(37.9, 2.8, 0), App.Vector(0, 0, 1), 44.1), math.radians(154.7), math.radians(174.12)), False)
sketch14.addGeometry(Part.LineSegment(App.Vector(6, 7.4, 0), App.Vector(6, 21.7, 0)), False)
sketch14.addGeometry(Part.LineSegment(App.Vector(6, 21.7, 0), App.Vector(2, 21.7, 0)), False)
sketch14.addGeometry(Part.ArcOfCircle(Part.Circle(App.Vector(-37.9, 2.8, 0), App.Vector(0, 0, 1), 44.1), math.radians(5.88), math.radians(25.3)), False)
sketch14.addConstraint(Sketcher.Constraint("Coincident", 0, 2, 1, 1))
sketch14.addConstraint(Sketcher.Constraint("Coincident", 1, 2, 2, 2))
sketch14.addConstraint(Sketcher.Constraint("Coincident", 2, 1, 0, 1))
sketch14.addConstraint(Sketcher.Constraint("Coincident", 3, 2, 4, 1))
sketch14.addConstraint(Sketcher.Constraint("Coincident", 4, 2, 5, 2))
sketch14.addConstraint(Sketcher.Constraint("Coincident", 5, 1, 3, 1))
sketch14.addConstraint(Sketcher.Constraint("Horizontal", 0))
sketch14.addConstraint(Sketcher.Constraint("Vertical", 1))
sketch14.addConstraint(Sketcher.Constraint("Vertical", 3))
sketch14.addConstraint(Sketcher.Constraint("Horizontal", 4))
sketch14.addConstraint(Sketcher.Constraint("Equal", 2, 5))
sketch14.addConstraint(Sketcher.Constraint("Symmetric", 2, 3, 5, 3, -2))
sketch14.addConstraint(Sketcher.Constraint("Symmetric", 0, 2, 3, 2, -2))
sketch14.addConstraint(Sketcher.Constraint("DistanceX", 0, 2, 0, 1, Q("4 mm")))
sketch14.addConstraint(Sketcher.Constraint("DistanceX", 0, 2, -1, 1, Q("6 mm")))
sketch14.addConstraint(Sketcher.Constraint("DistanceY", -1, 1, 0, 2, Q("21.7 mm")))
sketch14.addConstraint(Sketcher.Constraint("Radius", 2, Q("44.1267 mm")))
sketch14.addConstraint(Sketcher.Constraint("DistanceY", 1, 2, 1, 1, Q("14.3345 mm")))
sketch14.setExpression("Constraints[13]", "Params.sketch14_width")
pocket7 = body.newObject("PartDesign::Pocket", "Pocket006")
pocket7.Profile = sketch14
pocket7.Type = "ThroughAll"
pocket7.Reversed = True

doc.recompute()
